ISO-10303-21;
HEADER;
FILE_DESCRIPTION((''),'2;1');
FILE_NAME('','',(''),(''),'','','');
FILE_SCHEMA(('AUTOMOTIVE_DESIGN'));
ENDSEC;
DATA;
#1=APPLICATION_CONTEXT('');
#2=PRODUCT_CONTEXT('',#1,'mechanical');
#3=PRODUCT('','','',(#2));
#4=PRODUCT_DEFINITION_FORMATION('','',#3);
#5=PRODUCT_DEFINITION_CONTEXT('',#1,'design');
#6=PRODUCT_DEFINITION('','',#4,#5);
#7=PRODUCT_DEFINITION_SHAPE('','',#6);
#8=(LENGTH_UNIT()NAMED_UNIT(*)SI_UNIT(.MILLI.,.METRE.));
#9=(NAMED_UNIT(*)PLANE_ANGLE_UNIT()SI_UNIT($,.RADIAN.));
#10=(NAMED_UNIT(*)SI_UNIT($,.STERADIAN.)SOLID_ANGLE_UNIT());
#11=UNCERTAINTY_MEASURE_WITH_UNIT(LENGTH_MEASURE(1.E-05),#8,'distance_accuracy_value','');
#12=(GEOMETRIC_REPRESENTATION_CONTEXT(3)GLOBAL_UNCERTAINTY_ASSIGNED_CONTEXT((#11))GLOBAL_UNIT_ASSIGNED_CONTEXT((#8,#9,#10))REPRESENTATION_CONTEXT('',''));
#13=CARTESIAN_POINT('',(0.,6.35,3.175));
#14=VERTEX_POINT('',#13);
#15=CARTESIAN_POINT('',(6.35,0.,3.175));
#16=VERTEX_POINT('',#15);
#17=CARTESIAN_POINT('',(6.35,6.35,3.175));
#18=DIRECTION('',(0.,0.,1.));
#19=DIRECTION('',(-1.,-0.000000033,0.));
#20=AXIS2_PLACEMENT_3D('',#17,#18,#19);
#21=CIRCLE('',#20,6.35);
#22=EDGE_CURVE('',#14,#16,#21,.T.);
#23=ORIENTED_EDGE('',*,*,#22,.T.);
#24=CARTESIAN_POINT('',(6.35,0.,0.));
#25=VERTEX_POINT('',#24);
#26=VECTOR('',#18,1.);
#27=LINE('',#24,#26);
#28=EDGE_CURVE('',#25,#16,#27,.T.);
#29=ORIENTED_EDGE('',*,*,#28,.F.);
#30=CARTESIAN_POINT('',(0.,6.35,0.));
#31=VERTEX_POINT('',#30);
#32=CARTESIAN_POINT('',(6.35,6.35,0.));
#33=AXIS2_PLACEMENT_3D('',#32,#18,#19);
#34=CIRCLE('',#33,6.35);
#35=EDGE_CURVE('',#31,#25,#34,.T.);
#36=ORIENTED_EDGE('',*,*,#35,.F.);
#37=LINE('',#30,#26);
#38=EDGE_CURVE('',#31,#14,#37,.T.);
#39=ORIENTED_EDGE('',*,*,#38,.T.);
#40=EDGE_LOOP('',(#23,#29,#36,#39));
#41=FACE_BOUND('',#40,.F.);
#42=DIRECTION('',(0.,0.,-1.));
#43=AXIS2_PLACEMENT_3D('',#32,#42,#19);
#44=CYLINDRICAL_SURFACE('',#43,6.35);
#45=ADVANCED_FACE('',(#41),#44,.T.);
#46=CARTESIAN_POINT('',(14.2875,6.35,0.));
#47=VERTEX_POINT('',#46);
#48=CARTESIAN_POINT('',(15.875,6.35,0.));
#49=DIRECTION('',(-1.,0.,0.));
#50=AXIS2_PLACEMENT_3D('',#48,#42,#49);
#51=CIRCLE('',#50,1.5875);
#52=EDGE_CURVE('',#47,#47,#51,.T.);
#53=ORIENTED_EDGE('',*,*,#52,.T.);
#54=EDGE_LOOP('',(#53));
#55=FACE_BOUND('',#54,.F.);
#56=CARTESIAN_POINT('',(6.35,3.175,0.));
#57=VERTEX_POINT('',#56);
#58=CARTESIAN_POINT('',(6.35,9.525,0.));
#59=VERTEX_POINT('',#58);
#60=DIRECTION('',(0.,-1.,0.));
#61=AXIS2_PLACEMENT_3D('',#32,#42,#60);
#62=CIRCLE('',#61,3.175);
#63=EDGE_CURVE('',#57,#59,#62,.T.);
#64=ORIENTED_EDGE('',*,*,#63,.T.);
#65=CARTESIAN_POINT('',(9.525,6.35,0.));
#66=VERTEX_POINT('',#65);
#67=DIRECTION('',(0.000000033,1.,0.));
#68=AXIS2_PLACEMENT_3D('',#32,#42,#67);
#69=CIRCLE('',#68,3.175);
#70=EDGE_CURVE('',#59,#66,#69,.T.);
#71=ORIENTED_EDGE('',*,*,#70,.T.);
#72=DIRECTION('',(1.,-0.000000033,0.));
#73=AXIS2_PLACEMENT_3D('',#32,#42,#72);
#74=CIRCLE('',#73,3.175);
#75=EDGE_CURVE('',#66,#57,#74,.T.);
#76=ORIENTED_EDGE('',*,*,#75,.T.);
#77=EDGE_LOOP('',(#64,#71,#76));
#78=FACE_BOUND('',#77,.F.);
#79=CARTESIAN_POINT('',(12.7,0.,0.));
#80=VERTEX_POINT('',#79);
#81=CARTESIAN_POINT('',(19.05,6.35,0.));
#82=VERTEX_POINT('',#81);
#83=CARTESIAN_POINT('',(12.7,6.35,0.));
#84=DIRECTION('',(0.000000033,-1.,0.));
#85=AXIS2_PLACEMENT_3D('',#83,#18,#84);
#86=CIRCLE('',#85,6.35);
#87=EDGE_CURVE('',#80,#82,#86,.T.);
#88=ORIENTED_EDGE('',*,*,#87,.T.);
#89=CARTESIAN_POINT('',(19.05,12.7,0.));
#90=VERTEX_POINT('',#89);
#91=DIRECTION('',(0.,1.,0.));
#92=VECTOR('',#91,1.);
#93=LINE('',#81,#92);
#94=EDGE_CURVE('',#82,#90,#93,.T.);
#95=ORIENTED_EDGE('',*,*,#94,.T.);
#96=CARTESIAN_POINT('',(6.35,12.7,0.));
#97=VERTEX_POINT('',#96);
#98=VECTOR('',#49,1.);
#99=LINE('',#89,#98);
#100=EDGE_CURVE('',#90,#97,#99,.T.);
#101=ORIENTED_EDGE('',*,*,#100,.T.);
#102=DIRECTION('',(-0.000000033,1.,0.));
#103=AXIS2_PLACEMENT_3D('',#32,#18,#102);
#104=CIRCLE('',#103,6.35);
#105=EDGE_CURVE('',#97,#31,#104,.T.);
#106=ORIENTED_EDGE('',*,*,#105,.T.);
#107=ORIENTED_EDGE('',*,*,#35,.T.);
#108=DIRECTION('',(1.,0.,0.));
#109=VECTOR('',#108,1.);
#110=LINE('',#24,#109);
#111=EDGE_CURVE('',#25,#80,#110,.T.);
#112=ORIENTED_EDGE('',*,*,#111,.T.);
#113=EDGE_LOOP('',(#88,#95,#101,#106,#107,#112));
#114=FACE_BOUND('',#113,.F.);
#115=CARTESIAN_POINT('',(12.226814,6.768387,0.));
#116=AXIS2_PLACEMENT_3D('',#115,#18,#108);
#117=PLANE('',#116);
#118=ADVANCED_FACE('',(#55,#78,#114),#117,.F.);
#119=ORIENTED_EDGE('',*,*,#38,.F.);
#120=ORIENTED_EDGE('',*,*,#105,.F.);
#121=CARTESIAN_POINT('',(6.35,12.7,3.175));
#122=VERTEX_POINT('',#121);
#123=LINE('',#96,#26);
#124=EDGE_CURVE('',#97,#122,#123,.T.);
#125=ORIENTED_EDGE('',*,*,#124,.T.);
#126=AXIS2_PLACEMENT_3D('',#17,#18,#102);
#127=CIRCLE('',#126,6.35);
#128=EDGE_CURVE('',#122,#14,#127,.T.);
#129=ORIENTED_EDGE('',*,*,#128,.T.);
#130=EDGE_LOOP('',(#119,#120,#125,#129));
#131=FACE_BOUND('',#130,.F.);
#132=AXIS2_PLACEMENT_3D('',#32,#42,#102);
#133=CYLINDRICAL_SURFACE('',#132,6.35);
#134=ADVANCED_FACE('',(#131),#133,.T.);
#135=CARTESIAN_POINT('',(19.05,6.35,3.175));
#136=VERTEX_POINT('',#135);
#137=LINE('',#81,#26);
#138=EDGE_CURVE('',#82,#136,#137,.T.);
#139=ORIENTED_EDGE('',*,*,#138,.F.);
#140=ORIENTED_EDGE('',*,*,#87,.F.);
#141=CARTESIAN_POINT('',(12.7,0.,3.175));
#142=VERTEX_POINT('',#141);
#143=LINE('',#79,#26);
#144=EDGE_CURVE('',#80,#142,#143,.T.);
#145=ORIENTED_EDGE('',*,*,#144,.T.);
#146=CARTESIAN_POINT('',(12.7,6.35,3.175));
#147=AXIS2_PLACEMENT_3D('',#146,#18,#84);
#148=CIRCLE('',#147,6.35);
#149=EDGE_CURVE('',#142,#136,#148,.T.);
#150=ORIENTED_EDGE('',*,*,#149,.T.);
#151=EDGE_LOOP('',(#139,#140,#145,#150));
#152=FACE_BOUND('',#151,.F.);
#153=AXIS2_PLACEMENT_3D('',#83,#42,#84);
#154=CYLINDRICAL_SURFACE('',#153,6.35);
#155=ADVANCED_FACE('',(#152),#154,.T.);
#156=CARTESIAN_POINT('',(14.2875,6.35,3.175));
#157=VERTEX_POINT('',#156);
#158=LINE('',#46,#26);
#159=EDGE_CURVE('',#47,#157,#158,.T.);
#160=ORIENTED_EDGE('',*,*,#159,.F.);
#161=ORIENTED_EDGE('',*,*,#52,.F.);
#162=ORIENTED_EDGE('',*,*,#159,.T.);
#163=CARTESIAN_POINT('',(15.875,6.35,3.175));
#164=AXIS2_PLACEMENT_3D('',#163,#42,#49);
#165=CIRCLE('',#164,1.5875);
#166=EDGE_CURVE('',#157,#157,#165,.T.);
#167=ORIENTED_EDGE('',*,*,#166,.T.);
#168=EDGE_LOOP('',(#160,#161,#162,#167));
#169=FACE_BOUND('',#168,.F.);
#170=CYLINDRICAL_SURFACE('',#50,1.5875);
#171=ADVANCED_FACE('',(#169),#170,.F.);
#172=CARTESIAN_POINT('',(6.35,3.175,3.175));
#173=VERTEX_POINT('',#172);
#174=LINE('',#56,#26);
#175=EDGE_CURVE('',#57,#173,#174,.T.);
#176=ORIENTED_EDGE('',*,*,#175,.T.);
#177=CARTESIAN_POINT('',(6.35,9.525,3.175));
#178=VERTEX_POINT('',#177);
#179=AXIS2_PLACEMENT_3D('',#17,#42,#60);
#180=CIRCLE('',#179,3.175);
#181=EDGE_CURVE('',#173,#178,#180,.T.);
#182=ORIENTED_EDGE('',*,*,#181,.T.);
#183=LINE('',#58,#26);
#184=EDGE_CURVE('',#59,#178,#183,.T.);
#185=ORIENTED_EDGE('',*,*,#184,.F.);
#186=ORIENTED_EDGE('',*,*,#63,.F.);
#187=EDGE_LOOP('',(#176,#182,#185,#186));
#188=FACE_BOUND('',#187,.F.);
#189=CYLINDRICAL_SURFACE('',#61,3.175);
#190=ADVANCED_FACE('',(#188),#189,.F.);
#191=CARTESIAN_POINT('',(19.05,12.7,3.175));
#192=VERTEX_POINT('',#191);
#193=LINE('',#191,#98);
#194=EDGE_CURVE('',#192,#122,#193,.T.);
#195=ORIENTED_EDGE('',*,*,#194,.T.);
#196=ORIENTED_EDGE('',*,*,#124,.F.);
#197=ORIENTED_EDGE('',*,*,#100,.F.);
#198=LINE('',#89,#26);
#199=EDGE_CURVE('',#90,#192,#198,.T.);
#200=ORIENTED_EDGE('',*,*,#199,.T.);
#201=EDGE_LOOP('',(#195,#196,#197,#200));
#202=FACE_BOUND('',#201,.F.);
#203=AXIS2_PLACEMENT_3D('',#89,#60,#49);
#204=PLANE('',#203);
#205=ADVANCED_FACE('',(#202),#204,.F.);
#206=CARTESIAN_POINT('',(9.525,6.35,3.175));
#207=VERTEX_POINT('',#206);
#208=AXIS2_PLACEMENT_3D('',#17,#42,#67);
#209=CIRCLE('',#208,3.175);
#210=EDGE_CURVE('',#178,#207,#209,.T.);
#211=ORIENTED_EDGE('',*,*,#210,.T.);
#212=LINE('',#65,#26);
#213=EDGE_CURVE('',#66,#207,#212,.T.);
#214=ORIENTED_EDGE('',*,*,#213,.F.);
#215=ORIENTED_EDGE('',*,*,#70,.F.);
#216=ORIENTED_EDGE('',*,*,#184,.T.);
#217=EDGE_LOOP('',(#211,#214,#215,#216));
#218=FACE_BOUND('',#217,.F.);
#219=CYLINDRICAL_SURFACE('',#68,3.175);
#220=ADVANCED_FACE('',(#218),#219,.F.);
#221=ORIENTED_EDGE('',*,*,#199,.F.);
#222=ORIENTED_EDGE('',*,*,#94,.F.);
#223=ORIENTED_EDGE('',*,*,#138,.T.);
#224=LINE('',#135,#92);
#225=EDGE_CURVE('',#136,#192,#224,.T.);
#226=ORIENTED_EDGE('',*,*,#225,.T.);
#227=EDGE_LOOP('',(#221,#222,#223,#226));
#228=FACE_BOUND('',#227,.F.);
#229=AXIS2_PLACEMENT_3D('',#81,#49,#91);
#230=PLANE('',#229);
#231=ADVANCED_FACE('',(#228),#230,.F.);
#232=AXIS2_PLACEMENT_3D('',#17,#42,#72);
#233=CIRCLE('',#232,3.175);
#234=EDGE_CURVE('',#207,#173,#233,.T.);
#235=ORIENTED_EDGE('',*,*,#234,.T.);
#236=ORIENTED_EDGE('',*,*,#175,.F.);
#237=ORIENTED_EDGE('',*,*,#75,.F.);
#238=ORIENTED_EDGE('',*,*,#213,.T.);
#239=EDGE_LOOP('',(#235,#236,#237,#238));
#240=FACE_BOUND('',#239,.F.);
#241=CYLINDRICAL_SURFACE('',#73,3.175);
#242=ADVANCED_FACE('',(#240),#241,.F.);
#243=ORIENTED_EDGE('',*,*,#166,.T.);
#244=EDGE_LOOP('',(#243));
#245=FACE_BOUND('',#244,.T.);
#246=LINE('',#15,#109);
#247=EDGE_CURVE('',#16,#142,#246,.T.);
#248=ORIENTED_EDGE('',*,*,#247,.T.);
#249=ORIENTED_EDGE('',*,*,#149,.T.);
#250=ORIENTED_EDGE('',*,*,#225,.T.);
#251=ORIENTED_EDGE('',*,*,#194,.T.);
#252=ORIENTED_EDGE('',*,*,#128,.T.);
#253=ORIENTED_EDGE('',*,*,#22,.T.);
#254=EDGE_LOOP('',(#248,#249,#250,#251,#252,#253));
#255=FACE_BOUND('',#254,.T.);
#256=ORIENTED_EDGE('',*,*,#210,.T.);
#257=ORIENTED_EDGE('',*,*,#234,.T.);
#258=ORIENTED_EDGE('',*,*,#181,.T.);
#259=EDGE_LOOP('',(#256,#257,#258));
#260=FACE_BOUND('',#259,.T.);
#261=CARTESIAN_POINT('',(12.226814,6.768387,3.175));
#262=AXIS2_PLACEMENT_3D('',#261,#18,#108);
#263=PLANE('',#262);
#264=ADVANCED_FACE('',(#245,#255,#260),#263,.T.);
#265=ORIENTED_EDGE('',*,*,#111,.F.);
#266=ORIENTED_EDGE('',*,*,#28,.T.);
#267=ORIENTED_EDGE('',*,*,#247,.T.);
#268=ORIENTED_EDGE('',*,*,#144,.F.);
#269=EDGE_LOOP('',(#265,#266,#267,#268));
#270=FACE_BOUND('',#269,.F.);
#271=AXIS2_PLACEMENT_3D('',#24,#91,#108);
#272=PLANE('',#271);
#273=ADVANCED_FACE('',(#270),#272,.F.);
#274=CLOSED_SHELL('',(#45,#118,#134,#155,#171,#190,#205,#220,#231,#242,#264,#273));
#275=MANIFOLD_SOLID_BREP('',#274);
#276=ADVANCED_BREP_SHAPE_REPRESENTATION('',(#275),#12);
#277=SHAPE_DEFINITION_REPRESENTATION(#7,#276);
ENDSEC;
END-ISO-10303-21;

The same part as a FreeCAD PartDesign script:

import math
import FreeCAD as App
import Part
import Sketcher
Q = App.Units.Quantity

doc = App.newDocument("Part")
body = doc.addObject("PartDesign::Body", "Body")

sketch1 = body.newObject("Sketcher::SketchObject", "Sketch")
sketch1.AttachmentSupport = (doc.getObject("XY_Plane"), [""])
sketch1.MapMode = "FlatFace"
sketch1.addGeometry(Part.LineSegment(App.Vector(6.3, 0, 0), App.Vector(12.7, 0, 0)), False)
sketch1.addGeometry(Part.ArcOfCircle(Part.Circle(App.Vector(12.7, 6.4, 0), App.Vector(0, 0, 1), 6.4), math.radians(-90), math.radians(0)), False)
sketch1.addGeometry(Part.LineSegment(App.Vector(19.1, 6.3, 0), App.Vector(19.1, 12.7, 0)), False)
sketch1.addGeometry(Part.LineSegment(App.Vector(19.1, 12.7, 0), App.Vector(6.3, 12.7, 0)), False)
sketch1.addGeometry(Part.ArcOfCircle(Part.Circle(App.Vector(6.4, 6.3, 0), App.Vector(0, 0, 1), 6.4), math.radians(90), math.radians(180)), False)
sketch1.addGeometry(Part.ArcOfCircle(Part.Circle(App.Vector(6.4, 6.4, 0), App.Vector(0, 0, 1), 6.4), math.radians(-180), math.radians(-90)), False)
sketch1.addGeometry(Part.ArcOfCircle(Part.Circle(App.Vector(6.3, 6.4, 0), App.Vector(0, 0, 1), 3.2), math.radians(-90), math.radians(0)), False)
sketch1.addGeometry(Part.ArcOfCircle(Part.Circle(App.Vector(6.3, 6.3, 0), App.Vector(0, 0, 1), 3.2), math.radians(90), math.radians(270)), False)
sketch1.addGeometry(Part.ArcOfCircle(Part.Circle(App.Vector(6.3, 6.3, 0), App.Vector(0, 0, 1), 3.2), math.radians(0), math.radians(90)), False)
sketch1.addGeometry(Part.Circle(App.Vector(15.9, 6.3, 0), App.Vector(0, 0, 1), 1.6), False)
sketch1.addConstraint(Sketcher.Constraint("Tangent", 0, 2, 1, 1))
sketch1.addConstraint(Sketcher.Constraint("Tangent", 1, 2, 2, 1))
sketch1.addConstraint(Sketcher.Constraint("Coincident", 2, 2, 3, 1))
sketch1.addConstraint(Sketcher.Constraint("Tangent", 3, 2, 4, 1))
sketch1.addConstraint(Sketcher.Constraint("Tangent", 4, 2, 5, 1))
sketch1.addConstraint(Sketcher.Constraint("Tangent", 5, 2, 0, 1))
sketch1.addConstraint(Sketcher.Constraint("Tangent", 6, 1, 7, 2))
sketch1.addConstraint(Sketcher.Constraint("Tangent", 7, 1, 8, 2))
sketch1.addConstraint(Sketcher.Constraint("Tangent", 8, 1, 6, 2))
sketch1.addConstraint(Sketcher.Constraint("Horizontal", 0))
sketch1.addConstraint(Sketcher.Constraint("Vertical", 2))
sketch1.addConstraint(Sketcher.Constraint("Horizontal", 3))
sketch1.addConstraint(Sketcher.Constraint("Coincident", 6, 3, 4, 3))
sketch1.addConstraint(Sketcher.Constraint("Equal", 1, 4))
sketch1.addConstraint(Sketcher.Constraint("Equal", 4, 5))
sketch1.addConstraint(Sketcher.Constraint("PointOnObject", 0, 2, -1))
sketch1.addConstraint(Sketcher.Constraint("PointOnObject", 4, 2, -2))
sketch1.addConstraint(Sketcher.Constraint("Horizontal", 8, 3, 9, 3))
sketch1.addConstraint(Sketcher.Constraint("Horizontal", 1, 2, 4, 2))
sketch1.addConstraint(Sketcher.Constraint("Horizontal", 4, 2, 8, 1))
sketch1.addConstraint(Sketcher.Constraint("Vertical", 5, 2, 6, 1))
sketch1.addConstraint(Sketcher.Constraint("Vertical", 6, 1, 7, 1))
sketch1.addConstraint(Sketcher.Constraint("Equal", 0, 2))
sketch1.addConstraint(Sketcher.Constraint("Radius", 1, Q("0.25 in")))
sketch1.addConstraint(Sketcher.Constraint("Diameter", 9, Q("0.125 in")))
sketch1.addConstraint(Sketcher.Constraint("Radius", 6, Q("0.125 in")))
sketch1.addConstraint(Sketcher.Constraint("DistanceX", -1, 1, 9, 3, Q("0.625 in")))
pad1 = body.newObject("PartDesign::Pad", "Pad")
pad1.Profile = sketch1
pad1.Length = Q("0.125 in")

doc.recompute()
